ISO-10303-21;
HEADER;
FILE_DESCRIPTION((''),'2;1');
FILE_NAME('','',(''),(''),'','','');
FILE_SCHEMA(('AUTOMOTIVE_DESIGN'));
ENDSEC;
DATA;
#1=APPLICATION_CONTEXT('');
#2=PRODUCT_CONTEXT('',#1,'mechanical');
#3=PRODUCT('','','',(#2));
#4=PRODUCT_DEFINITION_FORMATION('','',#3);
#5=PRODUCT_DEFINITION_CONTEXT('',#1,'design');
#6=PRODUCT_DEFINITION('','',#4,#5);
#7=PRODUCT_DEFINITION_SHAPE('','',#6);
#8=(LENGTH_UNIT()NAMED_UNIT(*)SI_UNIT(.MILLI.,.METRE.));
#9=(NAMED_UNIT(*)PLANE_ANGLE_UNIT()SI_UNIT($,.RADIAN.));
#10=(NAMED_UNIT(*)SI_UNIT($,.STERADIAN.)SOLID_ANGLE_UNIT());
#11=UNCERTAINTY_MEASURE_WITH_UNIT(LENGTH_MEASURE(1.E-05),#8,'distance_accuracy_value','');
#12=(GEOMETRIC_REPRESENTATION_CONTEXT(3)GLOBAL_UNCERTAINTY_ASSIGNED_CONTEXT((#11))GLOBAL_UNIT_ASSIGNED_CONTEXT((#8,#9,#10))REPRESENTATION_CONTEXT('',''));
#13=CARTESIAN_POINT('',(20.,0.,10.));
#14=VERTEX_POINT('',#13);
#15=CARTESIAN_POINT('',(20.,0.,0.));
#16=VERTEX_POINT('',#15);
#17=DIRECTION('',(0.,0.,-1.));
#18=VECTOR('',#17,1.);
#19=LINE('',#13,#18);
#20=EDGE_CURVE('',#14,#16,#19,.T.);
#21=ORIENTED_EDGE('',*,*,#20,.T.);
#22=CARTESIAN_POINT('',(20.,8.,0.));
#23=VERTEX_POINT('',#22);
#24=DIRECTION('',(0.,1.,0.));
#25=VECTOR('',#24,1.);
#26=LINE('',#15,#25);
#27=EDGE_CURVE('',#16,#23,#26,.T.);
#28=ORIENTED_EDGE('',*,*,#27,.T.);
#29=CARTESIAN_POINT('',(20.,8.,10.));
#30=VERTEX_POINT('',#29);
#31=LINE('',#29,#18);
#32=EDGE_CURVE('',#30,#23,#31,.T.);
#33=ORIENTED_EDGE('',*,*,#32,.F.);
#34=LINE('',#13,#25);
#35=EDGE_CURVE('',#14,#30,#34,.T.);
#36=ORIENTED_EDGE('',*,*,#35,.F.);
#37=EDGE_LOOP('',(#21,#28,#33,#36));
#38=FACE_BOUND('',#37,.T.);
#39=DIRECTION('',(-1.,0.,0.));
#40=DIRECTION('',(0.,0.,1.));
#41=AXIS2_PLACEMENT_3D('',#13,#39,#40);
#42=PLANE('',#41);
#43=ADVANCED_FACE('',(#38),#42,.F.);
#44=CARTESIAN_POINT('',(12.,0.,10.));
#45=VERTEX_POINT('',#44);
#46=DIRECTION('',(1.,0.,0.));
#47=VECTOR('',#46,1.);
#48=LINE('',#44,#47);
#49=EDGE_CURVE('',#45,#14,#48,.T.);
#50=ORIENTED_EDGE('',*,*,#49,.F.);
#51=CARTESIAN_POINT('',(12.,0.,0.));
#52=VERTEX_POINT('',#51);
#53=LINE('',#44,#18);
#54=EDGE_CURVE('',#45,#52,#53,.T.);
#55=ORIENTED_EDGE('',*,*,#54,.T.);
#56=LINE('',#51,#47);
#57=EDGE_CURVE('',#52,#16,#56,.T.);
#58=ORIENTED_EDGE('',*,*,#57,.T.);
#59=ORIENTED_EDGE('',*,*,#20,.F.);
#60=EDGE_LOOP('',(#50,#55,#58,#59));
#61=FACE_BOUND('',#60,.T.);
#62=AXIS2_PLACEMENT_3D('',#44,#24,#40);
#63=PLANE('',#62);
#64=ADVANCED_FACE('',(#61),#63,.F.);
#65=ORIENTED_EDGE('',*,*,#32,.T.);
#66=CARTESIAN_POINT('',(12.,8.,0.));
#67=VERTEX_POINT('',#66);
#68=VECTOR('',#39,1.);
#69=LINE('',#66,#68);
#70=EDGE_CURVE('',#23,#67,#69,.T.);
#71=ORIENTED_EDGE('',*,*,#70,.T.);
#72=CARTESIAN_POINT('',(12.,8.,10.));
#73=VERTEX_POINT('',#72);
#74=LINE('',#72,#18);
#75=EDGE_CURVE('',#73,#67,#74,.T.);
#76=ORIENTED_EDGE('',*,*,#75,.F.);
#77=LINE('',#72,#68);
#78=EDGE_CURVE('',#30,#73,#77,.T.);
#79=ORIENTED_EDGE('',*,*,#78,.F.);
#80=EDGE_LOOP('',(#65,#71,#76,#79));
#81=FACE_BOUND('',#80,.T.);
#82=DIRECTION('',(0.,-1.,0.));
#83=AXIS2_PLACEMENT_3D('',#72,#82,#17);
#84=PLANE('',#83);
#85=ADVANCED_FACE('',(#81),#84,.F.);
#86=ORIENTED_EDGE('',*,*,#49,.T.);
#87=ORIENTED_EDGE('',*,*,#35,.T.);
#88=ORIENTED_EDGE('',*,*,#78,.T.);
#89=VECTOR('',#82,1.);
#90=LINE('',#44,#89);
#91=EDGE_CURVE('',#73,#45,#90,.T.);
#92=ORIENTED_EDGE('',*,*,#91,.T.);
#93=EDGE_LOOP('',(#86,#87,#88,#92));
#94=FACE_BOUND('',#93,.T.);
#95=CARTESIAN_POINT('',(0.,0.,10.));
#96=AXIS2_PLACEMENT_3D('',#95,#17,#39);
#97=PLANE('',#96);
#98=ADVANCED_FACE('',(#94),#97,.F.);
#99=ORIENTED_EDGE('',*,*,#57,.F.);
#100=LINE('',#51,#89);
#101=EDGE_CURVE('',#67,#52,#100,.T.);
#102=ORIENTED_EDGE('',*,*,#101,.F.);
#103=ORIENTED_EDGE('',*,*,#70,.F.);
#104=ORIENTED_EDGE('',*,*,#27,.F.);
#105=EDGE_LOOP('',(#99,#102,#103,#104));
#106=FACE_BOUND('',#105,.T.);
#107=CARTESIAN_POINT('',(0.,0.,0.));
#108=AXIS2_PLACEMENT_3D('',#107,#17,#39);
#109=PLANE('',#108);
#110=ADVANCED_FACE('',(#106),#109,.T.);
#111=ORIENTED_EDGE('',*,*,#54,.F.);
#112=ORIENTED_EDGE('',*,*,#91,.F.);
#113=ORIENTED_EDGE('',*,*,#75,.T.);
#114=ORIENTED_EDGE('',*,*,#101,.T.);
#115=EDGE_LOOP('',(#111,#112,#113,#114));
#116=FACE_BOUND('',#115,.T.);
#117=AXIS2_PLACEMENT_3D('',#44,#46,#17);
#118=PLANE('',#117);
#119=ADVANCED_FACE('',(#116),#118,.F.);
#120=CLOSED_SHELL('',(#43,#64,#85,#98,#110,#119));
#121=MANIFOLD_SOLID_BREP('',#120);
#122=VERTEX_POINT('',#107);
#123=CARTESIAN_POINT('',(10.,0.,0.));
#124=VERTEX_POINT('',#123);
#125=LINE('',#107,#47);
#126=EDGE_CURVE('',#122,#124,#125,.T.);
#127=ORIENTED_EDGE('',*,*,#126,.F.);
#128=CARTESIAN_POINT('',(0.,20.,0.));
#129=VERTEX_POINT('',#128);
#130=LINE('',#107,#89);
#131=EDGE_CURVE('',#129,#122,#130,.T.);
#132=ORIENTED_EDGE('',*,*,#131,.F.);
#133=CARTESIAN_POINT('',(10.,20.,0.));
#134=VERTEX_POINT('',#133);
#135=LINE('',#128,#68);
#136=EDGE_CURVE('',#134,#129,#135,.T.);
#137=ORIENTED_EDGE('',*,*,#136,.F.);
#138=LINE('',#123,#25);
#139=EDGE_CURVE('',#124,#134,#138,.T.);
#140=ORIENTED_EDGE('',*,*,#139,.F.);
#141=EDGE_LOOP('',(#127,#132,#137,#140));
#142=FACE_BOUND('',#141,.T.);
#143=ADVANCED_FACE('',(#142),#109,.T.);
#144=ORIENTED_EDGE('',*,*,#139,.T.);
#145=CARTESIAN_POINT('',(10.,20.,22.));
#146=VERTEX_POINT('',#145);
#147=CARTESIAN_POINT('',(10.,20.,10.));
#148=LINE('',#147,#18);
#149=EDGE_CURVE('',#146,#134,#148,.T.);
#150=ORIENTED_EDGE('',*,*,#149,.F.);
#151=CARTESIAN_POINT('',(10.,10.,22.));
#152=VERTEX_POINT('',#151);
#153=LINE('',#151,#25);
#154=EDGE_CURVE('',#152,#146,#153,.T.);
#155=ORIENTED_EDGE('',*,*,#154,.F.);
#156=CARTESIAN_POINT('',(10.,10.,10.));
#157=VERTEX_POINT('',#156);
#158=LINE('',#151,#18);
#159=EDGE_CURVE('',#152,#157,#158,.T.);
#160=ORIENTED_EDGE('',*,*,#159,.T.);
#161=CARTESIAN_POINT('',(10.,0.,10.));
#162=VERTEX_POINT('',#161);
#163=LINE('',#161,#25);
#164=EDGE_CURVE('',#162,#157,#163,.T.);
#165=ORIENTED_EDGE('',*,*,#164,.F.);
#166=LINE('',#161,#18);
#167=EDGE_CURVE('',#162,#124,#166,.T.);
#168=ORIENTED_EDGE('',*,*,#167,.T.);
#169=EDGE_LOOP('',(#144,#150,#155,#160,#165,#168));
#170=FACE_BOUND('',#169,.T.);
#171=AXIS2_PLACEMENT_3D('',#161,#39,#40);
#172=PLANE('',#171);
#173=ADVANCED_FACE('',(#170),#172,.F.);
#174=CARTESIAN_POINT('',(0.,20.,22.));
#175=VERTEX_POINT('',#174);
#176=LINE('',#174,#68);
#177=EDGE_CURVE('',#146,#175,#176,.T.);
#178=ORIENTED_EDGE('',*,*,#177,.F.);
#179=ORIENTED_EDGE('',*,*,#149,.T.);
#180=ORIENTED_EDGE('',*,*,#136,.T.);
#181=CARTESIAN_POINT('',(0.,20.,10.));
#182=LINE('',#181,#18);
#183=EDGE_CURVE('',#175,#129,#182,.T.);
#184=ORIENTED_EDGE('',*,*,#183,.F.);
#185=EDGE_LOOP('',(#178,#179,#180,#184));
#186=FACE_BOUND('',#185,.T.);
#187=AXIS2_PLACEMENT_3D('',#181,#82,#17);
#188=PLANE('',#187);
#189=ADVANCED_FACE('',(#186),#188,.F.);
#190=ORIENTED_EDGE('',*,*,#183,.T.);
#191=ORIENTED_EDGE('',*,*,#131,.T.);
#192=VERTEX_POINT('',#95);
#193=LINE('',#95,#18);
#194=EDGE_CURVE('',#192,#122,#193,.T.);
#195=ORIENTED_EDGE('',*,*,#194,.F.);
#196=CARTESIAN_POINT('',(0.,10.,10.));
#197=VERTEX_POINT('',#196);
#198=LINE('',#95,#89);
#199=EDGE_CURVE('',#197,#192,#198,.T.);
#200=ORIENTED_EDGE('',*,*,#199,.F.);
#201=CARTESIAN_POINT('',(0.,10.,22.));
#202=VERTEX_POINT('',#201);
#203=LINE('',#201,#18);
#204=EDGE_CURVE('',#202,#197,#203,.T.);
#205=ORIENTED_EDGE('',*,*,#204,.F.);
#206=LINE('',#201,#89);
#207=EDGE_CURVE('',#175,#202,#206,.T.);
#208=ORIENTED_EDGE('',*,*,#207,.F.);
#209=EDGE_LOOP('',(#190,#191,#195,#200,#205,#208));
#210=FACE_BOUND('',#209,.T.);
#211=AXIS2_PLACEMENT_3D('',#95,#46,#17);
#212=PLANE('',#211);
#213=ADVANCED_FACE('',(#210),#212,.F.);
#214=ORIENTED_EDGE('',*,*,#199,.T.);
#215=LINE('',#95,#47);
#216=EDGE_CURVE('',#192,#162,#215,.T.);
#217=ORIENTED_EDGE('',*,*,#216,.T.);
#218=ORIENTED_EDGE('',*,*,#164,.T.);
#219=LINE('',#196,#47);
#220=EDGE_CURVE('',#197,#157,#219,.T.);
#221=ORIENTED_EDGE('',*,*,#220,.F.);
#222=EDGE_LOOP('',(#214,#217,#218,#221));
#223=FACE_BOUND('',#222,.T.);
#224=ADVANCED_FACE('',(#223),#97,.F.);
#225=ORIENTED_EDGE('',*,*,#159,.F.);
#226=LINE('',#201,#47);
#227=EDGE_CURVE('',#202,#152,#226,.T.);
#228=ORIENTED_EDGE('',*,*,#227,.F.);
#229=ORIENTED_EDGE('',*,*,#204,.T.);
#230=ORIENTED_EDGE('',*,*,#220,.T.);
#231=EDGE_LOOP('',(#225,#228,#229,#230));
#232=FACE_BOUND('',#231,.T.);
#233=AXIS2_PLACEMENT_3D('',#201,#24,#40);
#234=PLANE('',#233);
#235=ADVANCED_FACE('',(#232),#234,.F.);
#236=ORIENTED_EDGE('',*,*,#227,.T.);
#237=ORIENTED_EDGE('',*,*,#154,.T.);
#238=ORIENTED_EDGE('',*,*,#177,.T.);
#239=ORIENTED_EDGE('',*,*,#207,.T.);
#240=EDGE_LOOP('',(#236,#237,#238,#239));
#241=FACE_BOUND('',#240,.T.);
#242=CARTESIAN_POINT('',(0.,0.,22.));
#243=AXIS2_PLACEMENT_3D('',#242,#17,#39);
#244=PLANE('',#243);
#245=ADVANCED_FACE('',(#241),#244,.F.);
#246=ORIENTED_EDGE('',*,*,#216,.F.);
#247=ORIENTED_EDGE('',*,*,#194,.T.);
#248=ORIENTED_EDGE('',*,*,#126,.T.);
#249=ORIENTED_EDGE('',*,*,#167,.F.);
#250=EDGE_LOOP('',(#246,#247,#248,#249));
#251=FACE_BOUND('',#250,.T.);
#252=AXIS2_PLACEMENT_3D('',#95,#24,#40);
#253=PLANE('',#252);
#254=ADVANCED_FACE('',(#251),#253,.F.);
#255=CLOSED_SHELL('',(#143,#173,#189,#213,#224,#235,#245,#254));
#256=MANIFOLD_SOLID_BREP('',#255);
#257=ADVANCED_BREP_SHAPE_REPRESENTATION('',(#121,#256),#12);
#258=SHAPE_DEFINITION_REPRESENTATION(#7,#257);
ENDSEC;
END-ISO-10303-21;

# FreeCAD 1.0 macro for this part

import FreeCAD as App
import Part
import Sketcher
from FreeCAD import Vector

doc = App.newDocument("Part")
params = doc.addObject("Spreadsheet::Sheet", "Params")
for row, (alias, value) in enumerate([
    ("sketch1_width", "10 mm"),
    ("sketch1_height", "20 mm"),
    ("pad1_length", "10 mm"),
    ("sketch2_width", "10 mm"),
    ("pad2_length", "22 mm"),
    ("sketch3_width", "8 mm"),
    ("pad3_length", "10 mm"),
], start=1):
    params.set(f"A{row}", alias)
    params.set(f"B{row}", "=" + value)
    params.setAlias(f"B{row}", alias)

body = doc.addObject("PartDesign::Body", "Body")

# Sketch on XY plane
sketch1 = body.newObject("Sketcher::SketchObject", "Sketch")
sketch1.AttachmentSupport = (doc.getObject("XY_Plane"), [""])
sketch1.MapMode = "FlatFace"
sketch1.addGeometry(Part.LineSegment(Vector(0, 20, 0), Vector(0, 0, 0)), False)
sketch1.addGeometry(Part.LineSegment(Vector(0, 0, 0), Vector(10, 0, 0)), False)
sketch1.addGeometry(Part.LineSegment(Vector(10, 0, 0), Vector(10, 20, 0)), False)
sketch1.addGeometry(Part.LineSegment(Vector(10, 20, 0), Vector(0, 20, 0)), False)
sketch1.addConstraint(Sketcher.Constraint("Coincident", 0, 2, 1, 1))
sketch1.addConstraint(Sketcher.Constraint("Coincident", 1, 2, 2, 1))
sketch1.addConstraint(Sketcher.Constraint("Coincident", 2, 2, 3, 1))
sketch1.addConstraint(Sketcher.Constraint("Coincident", 3, 2, 0, 1))
sketch1.addConstraint(Sketcher.Constraint("Vertical", 0))
sketch1.addConstraint(Sketcher.Constraint("Horizontal", 1))
sketch1.addConstraint(Sketcher.Constraint("Vertical", 2))
sketch1.addConstraint(Sketcher.Constraint("Horizontal", 3))
sketch1.addConstraint(Sketcher.Constraint("Coincident", 0, 2, -1, 1))
sketch1.addConstraint(Sketcher.Constraint("DistanceX", 1, 1, 1, 2, 10.0))
sketch1.addConstraint(Sketcher.Constraint("DistanceY", 0, 2, 0, 1, 20.0))
sketch1.setExpression("Constraints[9]", "Params.sketch1_width")
sketch1.setExpression("Constraints[10]", "Params.sketch1_height")
pad1 = body.newObject("PartDesign::Pad", "Pad")
pad1.Profile = sketch1
pad1.setExpression("Length", "Params.pad1_length")

# Sketch on XY plane
sketch2 = body.newObject("Sketcher::SketchObject", "Sketch001")
sketch2.AttachmentSupport = (doc.getObject("XY_Plane"), [""])
sketch2.MapMode = "FlatFace"
sketch2.addGeometry(Part.LineSegment(Vector(0, 20, 0), Vector(0, 10, 0)), False)
sketch2.addGeometry(Part.LineSegment(Vector(0, 10, 0), Vector(10, 10, 0)), False)
sketch2.addGeometry(Part.LineSegment(Vector(10, 10, 0), Vector(10, 20, 0)), False)
sketch2.addGeometry(Part.LineSegment(Vector(10, 20, 0), Vector(0, 20, 0)), False)
sketch2.addConstraint(Sketcher.Constraint("Coincident", 0, 2, 1, 1))
sketch2.addConstraint(Sketcher.Constraint("Coincident", 1, 2, 2, 1))
sketch2.addConstraint(Sketcher.Constraint("Coincident", 2, 2, 3, 1))
sketch2.addConstraint(Sketcher.Constraint("Coincident", 3, 2, 0, 1))
sketch2.addConstraint(Sketcher.Constraint("Vertical", 0))
sketch2.addConstraint(Sketcher.Constraint("Horizontal", 1))
sketch2.addConstraint(Sketcher.Constraint("Vertical", 2))
sketch2.addConstraint(Sketcher.Constraint("Horizontal", 3))
sketch2.addConstraint(Sketcher.Constraint("PointOnObject", 0, 2, -2))
sketch2.addConstraint(Sketcher.Constraint("Equal", 3, 0))
sketch2.addConstraint(Sketcher.Constraint("DistanceX", 1, 1, 1, 2, 10.0))
sketch2.addConstraint(Sketcher.Constraint("DistanceY", -1, 1, 0, 2, 10.0))
sketch2.setExpression("Constraints[10]", "Params.sketch2_width")
pad2 = body.newObject("PartDesign::Pad", "Pad001")
pad2.Profile = sketch2
pad2.setExpression("Length", "Params.pad2_length")
body2 = doc.addObject("PartDesign::Body", "Body001")

# Sketch on XY plane
sketch3 = body2.newObject("Sketcher::SketchObject", "Sketch002")
sketch3.AttachmentSupport = (doc.getObject("XY_Plane001"), [""])
sketch3.MapMode = "FlatFace"
sketch3.addGeometry(Part.LineSegment(Vector(12, 8, 0), Vector(12, 0, 0)), False)
sketch3.addGeometry(Part.LineSegment(Vector(12, 0, 0), Vector(20, 0, 0)), False)
sketch3.addGeometry(Part.LineSegment(Vector(20, 0, 0), Vector(20, 8, 0)), False)
sketch3.addGeometry(Part.LineSegment(Vector(20, 8, 0), Vector(12, 8, 0)), False)
sketch3.addConstraint(Sketcher.Constraint("Coincident", 0, 2, 1, 1))
sketch3.addConstraint(Sketcher.Constraint("Coincident", 1, 2, 2, 1))
sketch3.addConstraint(Sketcher.Constraint("Coincident", 2, 2, 3, 1))
sketch3.addConstraint(Sketcher.Constraint("Coincident", 3, 2, 0, 1))
sketch3.addConstraint(Sketcher.Constraint("Vertical", 0))
sketch3.addConstraint(Sketcher.Constraint("Horizontal", 1))
sketch3.addConstraint(Sketcher.Constraint("Vertical", 2))
sketch3.addConstraint(Sketcher.Constraint("Horizontal", 3))
sketch3.addConstraint(Sketcher.Constraint("PointOnObject", 0, 2, -1))
sketch3.addConstraint(Sketcher.Constraint("Equal", 3, 0))
sketch3.addConstraint(Sketcher.Constraint("DistanceX", 1, 1, 1, 2, 8.0))
sketch3.addConstraint(Sketcher.Constraint("DistanceX", -1, 1, 0, 2, 12.0))
sketch3.setExpression("Constraints[10]", "Params.sketch3_width")
pad3 = body2.newObject("PartDesign::Pad", "Pad002")
pad3.Profile = sketch3
pad3.setExpression("Length", "Params.pad3_length")

doc.recompute()
